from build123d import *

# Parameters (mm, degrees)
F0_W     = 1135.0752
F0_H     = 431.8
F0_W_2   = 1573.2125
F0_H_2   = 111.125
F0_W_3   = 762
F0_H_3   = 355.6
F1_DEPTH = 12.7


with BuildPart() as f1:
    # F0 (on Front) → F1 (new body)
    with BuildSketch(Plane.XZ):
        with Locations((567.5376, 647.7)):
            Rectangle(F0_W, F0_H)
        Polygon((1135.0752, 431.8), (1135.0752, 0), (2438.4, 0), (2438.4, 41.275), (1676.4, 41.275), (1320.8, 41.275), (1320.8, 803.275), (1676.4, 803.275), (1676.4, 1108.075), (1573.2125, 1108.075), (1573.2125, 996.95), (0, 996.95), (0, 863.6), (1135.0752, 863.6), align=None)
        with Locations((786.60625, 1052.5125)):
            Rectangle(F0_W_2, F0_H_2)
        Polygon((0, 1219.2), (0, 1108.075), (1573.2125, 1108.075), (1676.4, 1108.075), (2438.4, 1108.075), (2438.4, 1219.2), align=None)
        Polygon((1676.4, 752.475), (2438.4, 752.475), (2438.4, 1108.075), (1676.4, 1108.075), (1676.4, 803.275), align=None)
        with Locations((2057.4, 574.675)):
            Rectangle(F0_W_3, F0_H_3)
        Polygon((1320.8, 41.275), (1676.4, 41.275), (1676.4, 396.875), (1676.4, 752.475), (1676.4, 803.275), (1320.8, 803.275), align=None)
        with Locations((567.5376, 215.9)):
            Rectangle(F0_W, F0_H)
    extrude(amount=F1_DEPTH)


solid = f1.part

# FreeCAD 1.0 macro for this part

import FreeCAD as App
import Part
import Sketcher

V = App.Vector
Q = App.Units.Quantity


def add_polygon(sketch, points):
    """Adds a closed chain of lines whose ends are joined by coincident constraints."""
    first, n = sketch.GeometryCount, len(points)
    for a, b in zip(points, points[1:] + points[:1]):
        sketch.addGeometry(Part.LineSegment(App.Vector(*a, 0), App.Vector(*b, 0)), False)
    for i in range(n):
        sketch.addConstraint(Sketcher.Constraint("Coincident", first + i, 2, first + (i + 1) % n, 1))

doc = App.newDocument("Part")
body = doc.addObject("PartDesign::Body", "Body")

# Sketch on XZ plane
sketch1 = body.newObject("Sketcher::SketchObject", "Sketch")
sketch1.AttachmentSupport = (doc.getObject("XZ_Plane"), [""])
sketch1.MapMode = "FlatFace"
add_polygon(sketch1, [(2438.4, 0), (2438.4, 41.275), (1676.4, 41.275), (1676.4, 396.875), (2438.4, 396.875), (2438.4, 1219.2), (0, 1219.2), (0, 0)])  # lines 0-7
sketch1.addConstraint(Sketcher.Constraint("Vertical", 0))
sketch1.addConstraint(Sketcher.Constraint("Horizontal", 1))
sketch1.addConstraint(Sketcher.Constraint("Vertical", 2))
sketch1.addConstraint(Sketcher.Constraint("Horizontal", 3))
sketch1.addConstraint(Sketcher.Constraint("Vertical", 4))
sketch1.addConstraint(Sketcher.Constraint("Horizontal", 5))
sketch1.addConstraint(Sketcher.Constraint("Vertical", 6))
sketch1.addConstraint(Sketcher.Constraint("Horizontal", 7))
sketch1.addConstraint(Sketcher.Constraint("Coincident", 6, 2, -1, 1))
sketch1.addConstraint(Sketcher.Constraint("Vertical", 0, 2, 3, 2))
sketch1.addConstraint(Sketcher.Constraint("DistanceX", 1, 2, 1, 1, Q("30 in")))
sketch1.addConstraint(Sketcher.Constraint("DistanceX", 5, 2, 5, 1, Q("96 in")))
sketch1.addConstraint(Sketcher.Constraint("DistanceY", 2, 1, 2, 2, Q("14 in")))
sketch1.addConstraint(Sketcher.Constraint("DistanceY", 6, 2, 6, 1, Q("48 in")))
sketch1.addConstraint(Sketcher.Constraint("DistanceY", 0, 1, 0, 2, Q("1.625 in")))
pad1 = body.newObject("PartDesign::Pad", "Pad")
pad1.Profile = sketch1
pad1.Length = Q("0.5 in")

doc.recompute()
